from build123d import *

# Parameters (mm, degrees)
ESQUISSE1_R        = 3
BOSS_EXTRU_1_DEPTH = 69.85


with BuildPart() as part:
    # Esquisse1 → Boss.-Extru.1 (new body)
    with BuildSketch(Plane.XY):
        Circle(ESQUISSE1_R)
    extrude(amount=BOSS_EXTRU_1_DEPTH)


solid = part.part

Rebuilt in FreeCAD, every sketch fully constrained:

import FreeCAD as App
import Part
import Sketcher

doc = App.newDocument("Part")
body = doc.addObject("PartDesign::Body", "Body")

sketch1 = doc.addObject("Sketcher::SketchObject", "Sketch")
body.addObject(sketch1)
sketch1.AttachmentSupport = (doc.XY_Plane, [""])
sketch1.MapMode = "FlatFace"
sketch1.addGeometry(Part.Circle(App.Vector(0, 0, 0), App.Vector(0, 0, 1), 3), False)
sketch1.addConstraint([
    Sketcher.Constraint("Coincident", 0, 3, -1, 1),
    Sketcher.Constraint("Diameter", 0, 6.0),
])
pad1 = doc.addObject("PartDesign::Pad", "Pad")
body.addObject(pad1)
pad1.Profile = sketch1
pad1.Length = 69.85

doc.recompute()
